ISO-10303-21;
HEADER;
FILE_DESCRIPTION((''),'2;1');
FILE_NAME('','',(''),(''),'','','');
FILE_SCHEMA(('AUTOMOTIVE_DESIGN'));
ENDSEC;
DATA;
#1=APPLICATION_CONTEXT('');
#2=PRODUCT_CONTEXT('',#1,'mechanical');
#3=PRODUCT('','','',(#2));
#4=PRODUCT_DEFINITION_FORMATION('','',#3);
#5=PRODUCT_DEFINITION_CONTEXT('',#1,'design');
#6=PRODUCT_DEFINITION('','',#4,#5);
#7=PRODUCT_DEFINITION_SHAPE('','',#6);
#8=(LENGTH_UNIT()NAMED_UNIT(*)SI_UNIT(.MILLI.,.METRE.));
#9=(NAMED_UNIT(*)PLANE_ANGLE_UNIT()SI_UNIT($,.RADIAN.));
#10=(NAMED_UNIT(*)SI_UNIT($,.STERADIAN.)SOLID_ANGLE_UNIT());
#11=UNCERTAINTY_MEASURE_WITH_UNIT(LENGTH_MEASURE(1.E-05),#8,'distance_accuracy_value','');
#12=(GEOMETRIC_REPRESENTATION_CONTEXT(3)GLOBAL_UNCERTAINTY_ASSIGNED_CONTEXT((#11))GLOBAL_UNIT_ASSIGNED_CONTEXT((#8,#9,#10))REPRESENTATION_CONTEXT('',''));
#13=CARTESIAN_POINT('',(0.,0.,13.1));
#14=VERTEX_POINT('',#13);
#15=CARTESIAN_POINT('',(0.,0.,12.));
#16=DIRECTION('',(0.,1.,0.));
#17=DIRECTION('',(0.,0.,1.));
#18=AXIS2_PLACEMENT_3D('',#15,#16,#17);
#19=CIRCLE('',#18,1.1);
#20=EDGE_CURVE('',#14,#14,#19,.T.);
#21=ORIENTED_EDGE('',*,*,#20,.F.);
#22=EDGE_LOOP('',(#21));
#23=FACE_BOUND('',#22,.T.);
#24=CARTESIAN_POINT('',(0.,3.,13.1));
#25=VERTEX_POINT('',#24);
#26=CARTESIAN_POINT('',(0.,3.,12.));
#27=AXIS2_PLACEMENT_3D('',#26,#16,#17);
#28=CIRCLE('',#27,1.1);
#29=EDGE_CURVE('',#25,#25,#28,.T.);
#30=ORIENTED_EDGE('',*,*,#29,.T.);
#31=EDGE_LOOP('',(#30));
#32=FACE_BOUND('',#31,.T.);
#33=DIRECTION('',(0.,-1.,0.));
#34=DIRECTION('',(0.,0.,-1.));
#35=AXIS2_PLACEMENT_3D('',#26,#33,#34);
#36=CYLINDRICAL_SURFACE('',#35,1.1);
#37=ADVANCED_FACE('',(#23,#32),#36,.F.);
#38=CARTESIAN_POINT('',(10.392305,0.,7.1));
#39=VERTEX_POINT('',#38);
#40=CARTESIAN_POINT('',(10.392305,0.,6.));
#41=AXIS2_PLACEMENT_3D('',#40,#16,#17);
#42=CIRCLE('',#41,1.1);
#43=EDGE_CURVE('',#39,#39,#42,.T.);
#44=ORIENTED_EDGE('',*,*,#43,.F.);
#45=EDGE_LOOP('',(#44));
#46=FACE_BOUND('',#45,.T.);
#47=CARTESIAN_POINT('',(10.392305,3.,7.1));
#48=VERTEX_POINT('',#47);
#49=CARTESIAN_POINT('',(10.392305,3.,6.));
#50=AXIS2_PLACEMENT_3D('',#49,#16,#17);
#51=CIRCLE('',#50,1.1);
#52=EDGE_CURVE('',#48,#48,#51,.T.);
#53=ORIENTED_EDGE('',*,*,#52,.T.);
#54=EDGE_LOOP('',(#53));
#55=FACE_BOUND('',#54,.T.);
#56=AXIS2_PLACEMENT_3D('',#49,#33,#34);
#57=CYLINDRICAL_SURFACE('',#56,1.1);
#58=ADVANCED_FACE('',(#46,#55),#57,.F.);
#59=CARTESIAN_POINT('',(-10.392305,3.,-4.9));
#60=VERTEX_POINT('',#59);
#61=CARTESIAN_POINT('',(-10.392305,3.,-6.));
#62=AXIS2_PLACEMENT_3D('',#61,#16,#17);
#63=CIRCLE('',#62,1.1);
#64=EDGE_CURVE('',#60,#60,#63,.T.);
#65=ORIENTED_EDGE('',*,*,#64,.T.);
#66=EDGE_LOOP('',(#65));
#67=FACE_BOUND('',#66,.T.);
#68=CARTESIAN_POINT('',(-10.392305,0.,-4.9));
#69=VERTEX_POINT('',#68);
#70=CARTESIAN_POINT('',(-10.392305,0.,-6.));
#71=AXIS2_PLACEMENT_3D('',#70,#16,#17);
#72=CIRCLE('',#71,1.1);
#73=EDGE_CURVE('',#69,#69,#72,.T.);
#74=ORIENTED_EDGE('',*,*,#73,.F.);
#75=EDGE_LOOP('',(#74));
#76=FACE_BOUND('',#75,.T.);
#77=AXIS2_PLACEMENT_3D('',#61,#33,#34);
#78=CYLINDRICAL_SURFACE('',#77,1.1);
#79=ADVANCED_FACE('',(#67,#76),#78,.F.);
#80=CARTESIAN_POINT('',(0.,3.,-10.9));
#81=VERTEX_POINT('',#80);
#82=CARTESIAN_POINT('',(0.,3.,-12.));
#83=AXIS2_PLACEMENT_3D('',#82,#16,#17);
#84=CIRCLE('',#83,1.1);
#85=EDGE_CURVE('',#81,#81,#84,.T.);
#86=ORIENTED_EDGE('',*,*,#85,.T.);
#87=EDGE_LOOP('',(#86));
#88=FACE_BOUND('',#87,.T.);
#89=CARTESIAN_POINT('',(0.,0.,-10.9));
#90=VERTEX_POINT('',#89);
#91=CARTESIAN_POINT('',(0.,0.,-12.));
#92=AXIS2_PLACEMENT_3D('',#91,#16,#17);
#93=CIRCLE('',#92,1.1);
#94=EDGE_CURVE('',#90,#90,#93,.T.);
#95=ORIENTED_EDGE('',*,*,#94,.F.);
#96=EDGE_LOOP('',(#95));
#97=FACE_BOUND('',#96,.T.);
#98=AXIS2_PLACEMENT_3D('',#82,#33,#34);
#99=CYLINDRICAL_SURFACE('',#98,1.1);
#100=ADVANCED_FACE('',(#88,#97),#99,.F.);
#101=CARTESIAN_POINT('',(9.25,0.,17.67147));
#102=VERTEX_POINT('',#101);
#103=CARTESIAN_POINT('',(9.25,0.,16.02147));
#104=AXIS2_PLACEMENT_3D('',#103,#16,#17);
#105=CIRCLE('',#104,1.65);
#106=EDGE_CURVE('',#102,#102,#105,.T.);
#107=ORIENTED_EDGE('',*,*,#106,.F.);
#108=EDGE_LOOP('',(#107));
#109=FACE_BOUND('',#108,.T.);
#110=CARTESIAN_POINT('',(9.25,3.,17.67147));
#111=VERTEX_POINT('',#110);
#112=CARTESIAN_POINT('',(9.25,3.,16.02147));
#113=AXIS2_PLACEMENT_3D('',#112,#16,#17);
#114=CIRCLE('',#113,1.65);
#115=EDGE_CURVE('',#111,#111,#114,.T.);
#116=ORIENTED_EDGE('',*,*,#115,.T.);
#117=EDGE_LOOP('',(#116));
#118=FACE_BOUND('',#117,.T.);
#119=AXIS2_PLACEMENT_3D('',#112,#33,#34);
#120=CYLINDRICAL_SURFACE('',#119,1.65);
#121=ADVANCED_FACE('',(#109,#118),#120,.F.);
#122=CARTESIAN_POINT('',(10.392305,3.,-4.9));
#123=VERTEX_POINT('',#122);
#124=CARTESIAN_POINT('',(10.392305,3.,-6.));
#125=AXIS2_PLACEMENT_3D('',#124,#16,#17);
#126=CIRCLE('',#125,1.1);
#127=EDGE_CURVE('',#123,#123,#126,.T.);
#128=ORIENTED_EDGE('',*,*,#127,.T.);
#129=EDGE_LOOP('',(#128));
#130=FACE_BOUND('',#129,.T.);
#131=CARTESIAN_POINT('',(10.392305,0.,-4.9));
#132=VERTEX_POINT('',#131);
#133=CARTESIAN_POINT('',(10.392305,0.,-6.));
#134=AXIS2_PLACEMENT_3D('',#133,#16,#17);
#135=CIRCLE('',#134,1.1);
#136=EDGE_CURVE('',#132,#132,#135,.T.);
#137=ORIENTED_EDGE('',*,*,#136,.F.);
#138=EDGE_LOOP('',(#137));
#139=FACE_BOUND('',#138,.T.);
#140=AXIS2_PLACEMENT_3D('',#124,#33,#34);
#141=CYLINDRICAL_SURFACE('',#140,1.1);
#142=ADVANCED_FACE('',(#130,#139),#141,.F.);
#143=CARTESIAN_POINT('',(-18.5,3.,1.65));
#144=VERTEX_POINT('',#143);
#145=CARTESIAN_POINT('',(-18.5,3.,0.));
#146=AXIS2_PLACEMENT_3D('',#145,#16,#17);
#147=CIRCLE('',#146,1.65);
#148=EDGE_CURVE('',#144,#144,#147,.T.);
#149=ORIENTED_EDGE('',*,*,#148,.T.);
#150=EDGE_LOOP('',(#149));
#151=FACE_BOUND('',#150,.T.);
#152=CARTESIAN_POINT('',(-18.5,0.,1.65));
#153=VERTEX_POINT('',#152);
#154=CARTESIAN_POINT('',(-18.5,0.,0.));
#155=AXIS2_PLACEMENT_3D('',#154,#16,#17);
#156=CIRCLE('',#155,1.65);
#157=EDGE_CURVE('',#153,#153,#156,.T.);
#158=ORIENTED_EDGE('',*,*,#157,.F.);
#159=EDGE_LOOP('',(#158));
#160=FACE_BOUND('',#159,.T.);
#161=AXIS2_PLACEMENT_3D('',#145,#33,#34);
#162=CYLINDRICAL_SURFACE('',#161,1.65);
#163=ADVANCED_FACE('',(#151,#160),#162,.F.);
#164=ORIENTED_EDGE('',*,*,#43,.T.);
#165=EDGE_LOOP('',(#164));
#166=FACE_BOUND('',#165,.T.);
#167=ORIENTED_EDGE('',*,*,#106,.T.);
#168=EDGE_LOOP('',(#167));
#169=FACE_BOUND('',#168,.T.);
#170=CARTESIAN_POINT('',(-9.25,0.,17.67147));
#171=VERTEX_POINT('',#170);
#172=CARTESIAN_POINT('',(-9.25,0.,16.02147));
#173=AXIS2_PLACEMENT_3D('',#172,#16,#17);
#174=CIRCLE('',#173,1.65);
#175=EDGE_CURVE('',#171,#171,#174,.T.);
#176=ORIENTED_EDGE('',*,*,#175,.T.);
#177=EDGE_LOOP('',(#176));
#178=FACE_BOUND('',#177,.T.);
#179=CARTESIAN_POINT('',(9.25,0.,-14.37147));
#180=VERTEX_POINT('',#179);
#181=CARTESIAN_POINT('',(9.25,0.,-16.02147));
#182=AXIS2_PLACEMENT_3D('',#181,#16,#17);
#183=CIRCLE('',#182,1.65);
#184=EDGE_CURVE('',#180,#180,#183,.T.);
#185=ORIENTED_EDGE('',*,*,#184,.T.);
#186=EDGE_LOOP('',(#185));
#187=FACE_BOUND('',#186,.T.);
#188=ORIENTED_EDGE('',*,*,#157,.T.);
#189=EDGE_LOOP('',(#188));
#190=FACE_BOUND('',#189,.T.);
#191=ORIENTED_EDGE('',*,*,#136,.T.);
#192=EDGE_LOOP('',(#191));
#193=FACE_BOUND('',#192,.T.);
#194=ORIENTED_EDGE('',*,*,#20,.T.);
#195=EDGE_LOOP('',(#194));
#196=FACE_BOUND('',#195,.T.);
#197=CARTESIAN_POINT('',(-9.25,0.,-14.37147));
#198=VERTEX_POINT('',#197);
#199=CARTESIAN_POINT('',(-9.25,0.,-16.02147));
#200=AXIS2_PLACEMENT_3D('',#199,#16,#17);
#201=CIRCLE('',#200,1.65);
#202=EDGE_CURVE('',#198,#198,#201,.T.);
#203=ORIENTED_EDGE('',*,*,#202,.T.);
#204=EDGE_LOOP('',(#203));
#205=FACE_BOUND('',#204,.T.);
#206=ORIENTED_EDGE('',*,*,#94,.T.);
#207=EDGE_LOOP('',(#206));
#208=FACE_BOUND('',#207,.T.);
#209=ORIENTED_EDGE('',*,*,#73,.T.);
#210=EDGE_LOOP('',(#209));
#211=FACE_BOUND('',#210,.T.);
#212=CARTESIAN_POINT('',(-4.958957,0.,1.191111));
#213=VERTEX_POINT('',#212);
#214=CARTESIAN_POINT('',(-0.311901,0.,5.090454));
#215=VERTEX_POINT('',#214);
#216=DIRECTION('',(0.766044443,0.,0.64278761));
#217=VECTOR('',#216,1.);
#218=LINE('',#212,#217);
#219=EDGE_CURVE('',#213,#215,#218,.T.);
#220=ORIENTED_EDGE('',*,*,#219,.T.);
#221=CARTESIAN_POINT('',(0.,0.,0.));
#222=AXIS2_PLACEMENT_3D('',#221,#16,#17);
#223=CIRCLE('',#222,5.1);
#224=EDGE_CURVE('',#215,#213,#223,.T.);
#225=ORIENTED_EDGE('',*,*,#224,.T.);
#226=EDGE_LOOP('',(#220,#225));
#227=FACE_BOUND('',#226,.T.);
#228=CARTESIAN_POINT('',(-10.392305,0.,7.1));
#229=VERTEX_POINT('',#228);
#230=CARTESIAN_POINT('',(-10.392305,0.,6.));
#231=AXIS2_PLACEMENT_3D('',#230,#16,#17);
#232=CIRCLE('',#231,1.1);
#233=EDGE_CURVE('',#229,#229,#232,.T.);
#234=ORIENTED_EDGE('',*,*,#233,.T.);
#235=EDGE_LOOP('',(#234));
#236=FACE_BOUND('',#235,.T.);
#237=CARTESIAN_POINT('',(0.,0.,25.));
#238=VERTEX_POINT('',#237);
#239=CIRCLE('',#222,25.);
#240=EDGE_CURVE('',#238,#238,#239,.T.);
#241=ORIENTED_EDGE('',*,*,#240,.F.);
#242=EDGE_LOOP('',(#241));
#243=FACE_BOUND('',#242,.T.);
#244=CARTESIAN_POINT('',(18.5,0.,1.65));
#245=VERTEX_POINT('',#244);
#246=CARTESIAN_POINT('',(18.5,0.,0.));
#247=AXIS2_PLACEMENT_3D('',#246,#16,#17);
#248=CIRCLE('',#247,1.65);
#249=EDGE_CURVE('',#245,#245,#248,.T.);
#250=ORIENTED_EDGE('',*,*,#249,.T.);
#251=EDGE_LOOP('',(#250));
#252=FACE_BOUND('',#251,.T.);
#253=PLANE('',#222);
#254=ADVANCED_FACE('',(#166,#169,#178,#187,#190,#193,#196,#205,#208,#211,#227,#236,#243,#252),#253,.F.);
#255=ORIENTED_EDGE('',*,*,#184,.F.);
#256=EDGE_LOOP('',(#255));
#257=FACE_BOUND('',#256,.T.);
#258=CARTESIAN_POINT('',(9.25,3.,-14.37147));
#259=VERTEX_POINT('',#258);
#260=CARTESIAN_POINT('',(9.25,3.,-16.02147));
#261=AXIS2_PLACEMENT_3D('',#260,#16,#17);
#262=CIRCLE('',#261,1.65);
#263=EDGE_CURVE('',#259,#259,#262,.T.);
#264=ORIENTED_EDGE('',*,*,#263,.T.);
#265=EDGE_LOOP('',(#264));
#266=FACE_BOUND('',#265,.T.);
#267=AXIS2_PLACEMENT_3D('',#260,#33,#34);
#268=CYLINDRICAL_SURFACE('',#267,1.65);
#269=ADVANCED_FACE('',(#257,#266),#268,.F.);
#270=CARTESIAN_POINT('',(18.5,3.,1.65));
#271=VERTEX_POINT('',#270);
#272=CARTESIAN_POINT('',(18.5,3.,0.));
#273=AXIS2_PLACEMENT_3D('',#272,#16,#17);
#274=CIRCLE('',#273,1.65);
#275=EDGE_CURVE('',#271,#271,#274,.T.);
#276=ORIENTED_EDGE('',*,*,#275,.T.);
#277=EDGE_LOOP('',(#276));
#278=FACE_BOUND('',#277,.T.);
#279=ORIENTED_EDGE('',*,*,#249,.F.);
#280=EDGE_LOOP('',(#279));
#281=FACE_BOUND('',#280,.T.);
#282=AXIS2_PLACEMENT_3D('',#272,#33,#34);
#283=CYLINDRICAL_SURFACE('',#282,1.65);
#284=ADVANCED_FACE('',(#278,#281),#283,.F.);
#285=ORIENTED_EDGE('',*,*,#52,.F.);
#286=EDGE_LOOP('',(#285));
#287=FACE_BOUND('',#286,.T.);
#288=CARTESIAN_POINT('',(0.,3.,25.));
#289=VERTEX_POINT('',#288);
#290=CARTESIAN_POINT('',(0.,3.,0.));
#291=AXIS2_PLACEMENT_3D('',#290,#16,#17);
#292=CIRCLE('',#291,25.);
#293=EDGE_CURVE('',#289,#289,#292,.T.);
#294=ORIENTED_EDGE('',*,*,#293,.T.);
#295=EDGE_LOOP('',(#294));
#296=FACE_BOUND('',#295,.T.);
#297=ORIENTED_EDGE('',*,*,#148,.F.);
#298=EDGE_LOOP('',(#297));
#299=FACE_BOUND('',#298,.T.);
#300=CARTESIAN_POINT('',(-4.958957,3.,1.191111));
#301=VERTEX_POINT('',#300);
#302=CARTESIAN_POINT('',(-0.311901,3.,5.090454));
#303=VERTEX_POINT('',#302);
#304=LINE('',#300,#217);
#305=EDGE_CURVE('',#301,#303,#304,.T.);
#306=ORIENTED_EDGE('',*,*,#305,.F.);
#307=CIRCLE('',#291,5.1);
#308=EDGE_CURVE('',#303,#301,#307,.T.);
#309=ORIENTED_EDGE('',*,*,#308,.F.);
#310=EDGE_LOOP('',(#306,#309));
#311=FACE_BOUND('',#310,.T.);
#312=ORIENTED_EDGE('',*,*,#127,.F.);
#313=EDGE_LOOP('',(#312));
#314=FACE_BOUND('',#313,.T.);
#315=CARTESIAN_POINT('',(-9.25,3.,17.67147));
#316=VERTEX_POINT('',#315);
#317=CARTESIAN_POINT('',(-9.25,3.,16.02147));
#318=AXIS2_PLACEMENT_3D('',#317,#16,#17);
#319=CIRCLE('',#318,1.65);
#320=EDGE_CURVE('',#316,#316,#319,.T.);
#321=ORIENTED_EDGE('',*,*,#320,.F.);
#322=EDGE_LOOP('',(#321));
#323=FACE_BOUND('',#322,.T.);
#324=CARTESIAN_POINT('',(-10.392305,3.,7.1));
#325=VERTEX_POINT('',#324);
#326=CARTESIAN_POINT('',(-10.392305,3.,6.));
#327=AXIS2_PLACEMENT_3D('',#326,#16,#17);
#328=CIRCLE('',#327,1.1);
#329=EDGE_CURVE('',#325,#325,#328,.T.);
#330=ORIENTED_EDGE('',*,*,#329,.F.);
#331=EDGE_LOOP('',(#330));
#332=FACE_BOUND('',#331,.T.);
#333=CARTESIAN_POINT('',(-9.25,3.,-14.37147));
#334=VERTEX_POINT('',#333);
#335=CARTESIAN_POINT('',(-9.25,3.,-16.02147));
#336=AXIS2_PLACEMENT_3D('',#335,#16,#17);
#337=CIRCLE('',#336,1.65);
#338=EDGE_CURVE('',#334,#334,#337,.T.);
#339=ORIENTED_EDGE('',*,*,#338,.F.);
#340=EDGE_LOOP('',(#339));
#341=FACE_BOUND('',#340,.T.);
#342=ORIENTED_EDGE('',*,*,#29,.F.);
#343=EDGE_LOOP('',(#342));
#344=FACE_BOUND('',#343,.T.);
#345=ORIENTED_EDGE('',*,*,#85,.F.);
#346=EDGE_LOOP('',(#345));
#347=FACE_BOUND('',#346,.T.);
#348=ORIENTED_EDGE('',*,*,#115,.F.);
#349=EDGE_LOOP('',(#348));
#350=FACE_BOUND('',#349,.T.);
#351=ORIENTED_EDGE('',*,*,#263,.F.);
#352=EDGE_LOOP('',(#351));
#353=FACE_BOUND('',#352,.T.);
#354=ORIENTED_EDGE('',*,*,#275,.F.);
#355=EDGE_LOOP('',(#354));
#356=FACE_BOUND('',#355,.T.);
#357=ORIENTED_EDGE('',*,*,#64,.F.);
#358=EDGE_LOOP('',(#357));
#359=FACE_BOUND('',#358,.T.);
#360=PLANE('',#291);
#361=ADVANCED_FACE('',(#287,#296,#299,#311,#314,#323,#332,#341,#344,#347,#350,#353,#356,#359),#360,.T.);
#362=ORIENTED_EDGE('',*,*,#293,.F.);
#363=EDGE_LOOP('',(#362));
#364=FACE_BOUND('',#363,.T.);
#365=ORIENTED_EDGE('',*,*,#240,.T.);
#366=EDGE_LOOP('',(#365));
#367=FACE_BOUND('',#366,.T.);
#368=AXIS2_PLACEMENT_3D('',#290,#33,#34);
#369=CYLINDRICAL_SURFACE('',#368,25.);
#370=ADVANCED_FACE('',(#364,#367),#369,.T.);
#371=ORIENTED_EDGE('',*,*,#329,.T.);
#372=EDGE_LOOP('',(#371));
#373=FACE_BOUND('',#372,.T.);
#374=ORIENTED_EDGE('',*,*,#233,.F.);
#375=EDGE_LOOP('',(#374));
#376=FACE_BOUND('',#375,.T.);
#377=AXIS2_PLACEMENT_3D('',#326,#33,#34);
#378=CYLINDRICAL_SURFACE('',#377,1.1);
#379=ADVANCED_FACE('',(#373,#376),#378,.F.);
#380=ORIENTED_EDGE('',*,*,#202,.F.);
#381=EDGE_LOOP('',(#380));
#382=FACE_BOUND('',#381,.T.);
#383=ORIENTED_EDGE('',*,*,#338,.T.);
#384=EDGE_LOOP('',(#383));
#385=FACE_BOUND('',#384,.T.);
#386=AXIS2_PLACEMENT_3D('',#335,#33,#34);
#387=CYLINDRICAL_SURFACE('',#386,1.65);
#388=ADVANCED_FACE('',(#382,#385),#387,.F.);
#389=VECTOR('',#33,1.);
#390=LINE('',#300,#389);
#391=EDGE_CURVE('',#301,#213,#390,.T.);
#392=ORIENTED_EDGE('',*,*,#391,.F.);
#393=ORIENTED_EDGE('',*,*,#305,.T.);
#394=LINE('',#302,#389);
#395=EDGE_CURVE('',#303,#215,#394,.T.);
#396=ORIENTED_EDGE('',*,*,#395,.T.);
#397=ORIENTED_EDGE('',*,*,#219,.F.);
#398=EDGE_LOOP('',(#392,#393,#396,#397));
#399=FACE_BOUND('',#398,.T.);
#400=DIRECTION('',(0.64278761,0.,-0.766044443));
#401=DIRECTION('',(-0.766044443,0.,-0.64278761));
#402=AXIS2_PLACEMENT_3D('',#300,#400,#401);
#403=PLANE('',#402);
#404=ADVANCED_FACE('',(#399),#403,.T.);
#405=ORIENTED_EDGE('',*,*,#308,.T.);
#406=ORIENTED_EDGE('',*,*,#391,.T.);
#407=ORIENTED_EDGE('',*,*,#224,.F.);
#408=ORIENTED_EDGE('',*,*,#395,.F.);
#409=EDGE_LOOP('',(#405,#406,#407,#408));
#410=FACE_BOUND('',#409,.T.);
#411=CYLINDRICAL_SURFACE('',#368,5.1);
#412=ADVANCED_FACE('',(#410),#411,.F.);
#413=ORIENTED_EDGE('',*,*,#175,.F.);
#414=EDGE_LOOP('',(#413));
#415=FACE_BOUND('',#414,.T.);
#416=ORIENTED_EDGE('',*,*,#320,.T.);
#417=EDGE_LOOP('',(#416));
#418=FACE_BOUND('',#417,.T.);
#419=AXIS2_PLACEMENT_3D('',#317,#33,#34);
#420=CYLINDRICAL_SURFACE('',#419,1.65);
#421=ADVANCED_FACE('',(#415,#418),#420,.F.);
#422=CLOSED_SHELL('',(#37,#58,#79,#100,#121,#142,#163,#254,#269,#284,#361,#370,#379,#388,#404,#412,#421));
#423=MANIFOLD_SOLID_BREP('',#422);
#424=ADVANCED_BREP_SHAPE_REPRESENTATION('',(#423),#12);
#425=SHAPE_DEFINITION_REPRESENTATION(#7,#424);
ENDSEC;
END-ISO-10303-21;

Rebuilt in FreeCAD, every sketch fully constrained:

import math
import FreeCAD as App
import Part
import Sketcher
Q = App.Units.Quantity

doc = App.newDocument("Part")
body = doc.addObject("PartDesign::Body", "Body")

# Sketch on XZ plane
sketch1 = body.newObject("Sketcher::SketchObject", "Sketch")
sketch1.AttachmentSupport = (doc.getObject("XZ_Plane"), [""])
sketch1.MapMode = "FlatFace"
sketch1.addGeometry([
    Part.Circle(App.Vector(0, 0, 0), App.Vector(0, 0, 1), 25),  # 0
    Part.Circle(App.Vector(-10.4, -6, 0), App.Vector(0, 0, 1), 1.1),  # 1
    Part.Circle(App.Vector(-9.2, -16, 0), App.Vector(0, 0, 1), 1.6),  # 2
    Part.Circle(App.Vector(0, -12, 0), App.Vector(0, 0, 1), 1.1),  # 3
    Part.Circle(App.Vector(-18.5, 0, 0), App.Vector(0, 0, 1), 1.6),  # 4
    Part.Circle(App.Vector(-10.4, 6, 0), App.Vector(0, 0, 1), 1.1),  # 5
    Part.Circle(App.Vector(-9.2, 16, 0), App.Vector(0, 0, 1), 1.6),  # 6
    Part.Circle(App.Vector(9.2, -16, 0), App.Vector(0, 0, 1), 1.6),  # 7
    Part.Circle(App.Vector(10.4, -6, 0), App.Vector(0, 0, 1), 1.1),  # 8
    Part.Circle(App.Vector(18.5, 0, 0), App.Vector(0, 0, 1), 1.6),  # 9
    Part.LineSegment(App.Vector(-0.3, 5.1, 0), App.Vector(-5, 1.2, 0)),  # 10
    Part.ArcOfCircle(Part.Circle(App.Vector(0, 0, 0), App.Vector(0, 0, 1), 5.1), math.radians(166), math.radians(454)),  # 11
    Part.Circle(App.Vector(0, 12, 0), App.Vector(0, 0, 1), 1.1),  # 12
    Part.Circle(App.Vector(9.2, 16, 0), App.Vector(0, 0, 1), 1.6),  # 13
    Part.Circle(App.Vector(10.4, 6, 0), App.Vector(0, 0, 1), 1.1),  # 14
], False)
sketch1.addConstraint([
    Sketcher.Constraint("Coincident", 10, 1, 11, 2),
    Sketcher.Constraint("Coincident", 11, 1, 10, 2),
    Sketcher.Constraint("Coincident", 0, 3, -1, 1),
    Sketcher.Constraint("Coincident", 11, 3, -1, 1),
    Sketcher.Constraint("Equal", 1, 3),
    Sketcher.Constraint("Equal", 2, 4),
    Sketcher.Constraint("Equal", 3, 5),
    Sketcher.Constraint("Equal", 4, 6),
    Sketcher.Constraint("Equal", 6, 7),
    Sketcher.Constraint("Equal", 5, 8),
    Sketcher.Constraint("Equal", 7, 9),
    Sketcher.Constraint("Equal", 8, 12),
    Sketcher.Constraint("Equal", 9, 13),
    Sketcher.Constraint("Equal", 12, 14),
    Sketcher.Constraint("Symmetric", 6, 3, 7, 3, -1, 1),
    Sketcher.Constraint("Symmetric", 5, 3, 8, 3, -1, 1),
    Sketcher.Constraint("Symmetric", 4, 3, 9, 3, -1, 1),
    Sketcher.Constraint("Symmetric", 3, 3, 12, 3, -1, 1),
    Sketcher.Constraint("Symmetric", 2, 3, 13, 3, -1, 1),
    Sketcher.Constraint("Symmetric", 1, 3, 14, 3, -1, 1),
    Sketcher.Constraint("Symmetric", 2, 3, 7, 3, -2),
    Sketcher.Constraint("Symmetric", 1, 3, 8, 3, -2),
    Sketcher.Constraint("PointOnObject", 3, 3, -2),
    Sketcher.Constraint("PointOnObject", 4, 3, -1),
    Sketcher.Constraint("Diameter", 0, Q("50 mm")),
    Sketcher.Constraint("Diameter", 1, Q("2.2 mm")),
    Sketcher.Constraint("Diameter", 2, Q("3.3 mm")),
    Sketcher.Constraint("Radius", 11, Q("5.1 mm")),
    Sketcher.Constraint("Angle", 10, Q("-140 deg")),
    Sketcher.Constraint("DistanceY", 1, 3, -1, 1, Q("6 mm")),
    Sketcher.Constraint("DistanceY", 3, 3, -1, 1, Q("12 mm")),
    Sketcher.Constraint("DistanceX", 4, 3, -1, 1, Q("18.5 mm")),
    Sketcher.Constraint("DistanceX", 2, 3, 7, 3, Q("18.5 mm")),
    Sketcher.Constraint("Distance", 10, Q("6.0663 mm")),
    Sketcher.Constraint("DistanceY", 2, 3, -1, 1, Q("16.02147 mm")),
    Sketcher.Constraint("DistanceX", 1, 3, 8, 3, Q("20.78461 mm")),
])
pad1 = body.newObject("PartDesign::Pad", "Pad")
pad1.Profile = sketch1
pad1.Length = 3
pad1.Reversed = True

doc.recompute()
